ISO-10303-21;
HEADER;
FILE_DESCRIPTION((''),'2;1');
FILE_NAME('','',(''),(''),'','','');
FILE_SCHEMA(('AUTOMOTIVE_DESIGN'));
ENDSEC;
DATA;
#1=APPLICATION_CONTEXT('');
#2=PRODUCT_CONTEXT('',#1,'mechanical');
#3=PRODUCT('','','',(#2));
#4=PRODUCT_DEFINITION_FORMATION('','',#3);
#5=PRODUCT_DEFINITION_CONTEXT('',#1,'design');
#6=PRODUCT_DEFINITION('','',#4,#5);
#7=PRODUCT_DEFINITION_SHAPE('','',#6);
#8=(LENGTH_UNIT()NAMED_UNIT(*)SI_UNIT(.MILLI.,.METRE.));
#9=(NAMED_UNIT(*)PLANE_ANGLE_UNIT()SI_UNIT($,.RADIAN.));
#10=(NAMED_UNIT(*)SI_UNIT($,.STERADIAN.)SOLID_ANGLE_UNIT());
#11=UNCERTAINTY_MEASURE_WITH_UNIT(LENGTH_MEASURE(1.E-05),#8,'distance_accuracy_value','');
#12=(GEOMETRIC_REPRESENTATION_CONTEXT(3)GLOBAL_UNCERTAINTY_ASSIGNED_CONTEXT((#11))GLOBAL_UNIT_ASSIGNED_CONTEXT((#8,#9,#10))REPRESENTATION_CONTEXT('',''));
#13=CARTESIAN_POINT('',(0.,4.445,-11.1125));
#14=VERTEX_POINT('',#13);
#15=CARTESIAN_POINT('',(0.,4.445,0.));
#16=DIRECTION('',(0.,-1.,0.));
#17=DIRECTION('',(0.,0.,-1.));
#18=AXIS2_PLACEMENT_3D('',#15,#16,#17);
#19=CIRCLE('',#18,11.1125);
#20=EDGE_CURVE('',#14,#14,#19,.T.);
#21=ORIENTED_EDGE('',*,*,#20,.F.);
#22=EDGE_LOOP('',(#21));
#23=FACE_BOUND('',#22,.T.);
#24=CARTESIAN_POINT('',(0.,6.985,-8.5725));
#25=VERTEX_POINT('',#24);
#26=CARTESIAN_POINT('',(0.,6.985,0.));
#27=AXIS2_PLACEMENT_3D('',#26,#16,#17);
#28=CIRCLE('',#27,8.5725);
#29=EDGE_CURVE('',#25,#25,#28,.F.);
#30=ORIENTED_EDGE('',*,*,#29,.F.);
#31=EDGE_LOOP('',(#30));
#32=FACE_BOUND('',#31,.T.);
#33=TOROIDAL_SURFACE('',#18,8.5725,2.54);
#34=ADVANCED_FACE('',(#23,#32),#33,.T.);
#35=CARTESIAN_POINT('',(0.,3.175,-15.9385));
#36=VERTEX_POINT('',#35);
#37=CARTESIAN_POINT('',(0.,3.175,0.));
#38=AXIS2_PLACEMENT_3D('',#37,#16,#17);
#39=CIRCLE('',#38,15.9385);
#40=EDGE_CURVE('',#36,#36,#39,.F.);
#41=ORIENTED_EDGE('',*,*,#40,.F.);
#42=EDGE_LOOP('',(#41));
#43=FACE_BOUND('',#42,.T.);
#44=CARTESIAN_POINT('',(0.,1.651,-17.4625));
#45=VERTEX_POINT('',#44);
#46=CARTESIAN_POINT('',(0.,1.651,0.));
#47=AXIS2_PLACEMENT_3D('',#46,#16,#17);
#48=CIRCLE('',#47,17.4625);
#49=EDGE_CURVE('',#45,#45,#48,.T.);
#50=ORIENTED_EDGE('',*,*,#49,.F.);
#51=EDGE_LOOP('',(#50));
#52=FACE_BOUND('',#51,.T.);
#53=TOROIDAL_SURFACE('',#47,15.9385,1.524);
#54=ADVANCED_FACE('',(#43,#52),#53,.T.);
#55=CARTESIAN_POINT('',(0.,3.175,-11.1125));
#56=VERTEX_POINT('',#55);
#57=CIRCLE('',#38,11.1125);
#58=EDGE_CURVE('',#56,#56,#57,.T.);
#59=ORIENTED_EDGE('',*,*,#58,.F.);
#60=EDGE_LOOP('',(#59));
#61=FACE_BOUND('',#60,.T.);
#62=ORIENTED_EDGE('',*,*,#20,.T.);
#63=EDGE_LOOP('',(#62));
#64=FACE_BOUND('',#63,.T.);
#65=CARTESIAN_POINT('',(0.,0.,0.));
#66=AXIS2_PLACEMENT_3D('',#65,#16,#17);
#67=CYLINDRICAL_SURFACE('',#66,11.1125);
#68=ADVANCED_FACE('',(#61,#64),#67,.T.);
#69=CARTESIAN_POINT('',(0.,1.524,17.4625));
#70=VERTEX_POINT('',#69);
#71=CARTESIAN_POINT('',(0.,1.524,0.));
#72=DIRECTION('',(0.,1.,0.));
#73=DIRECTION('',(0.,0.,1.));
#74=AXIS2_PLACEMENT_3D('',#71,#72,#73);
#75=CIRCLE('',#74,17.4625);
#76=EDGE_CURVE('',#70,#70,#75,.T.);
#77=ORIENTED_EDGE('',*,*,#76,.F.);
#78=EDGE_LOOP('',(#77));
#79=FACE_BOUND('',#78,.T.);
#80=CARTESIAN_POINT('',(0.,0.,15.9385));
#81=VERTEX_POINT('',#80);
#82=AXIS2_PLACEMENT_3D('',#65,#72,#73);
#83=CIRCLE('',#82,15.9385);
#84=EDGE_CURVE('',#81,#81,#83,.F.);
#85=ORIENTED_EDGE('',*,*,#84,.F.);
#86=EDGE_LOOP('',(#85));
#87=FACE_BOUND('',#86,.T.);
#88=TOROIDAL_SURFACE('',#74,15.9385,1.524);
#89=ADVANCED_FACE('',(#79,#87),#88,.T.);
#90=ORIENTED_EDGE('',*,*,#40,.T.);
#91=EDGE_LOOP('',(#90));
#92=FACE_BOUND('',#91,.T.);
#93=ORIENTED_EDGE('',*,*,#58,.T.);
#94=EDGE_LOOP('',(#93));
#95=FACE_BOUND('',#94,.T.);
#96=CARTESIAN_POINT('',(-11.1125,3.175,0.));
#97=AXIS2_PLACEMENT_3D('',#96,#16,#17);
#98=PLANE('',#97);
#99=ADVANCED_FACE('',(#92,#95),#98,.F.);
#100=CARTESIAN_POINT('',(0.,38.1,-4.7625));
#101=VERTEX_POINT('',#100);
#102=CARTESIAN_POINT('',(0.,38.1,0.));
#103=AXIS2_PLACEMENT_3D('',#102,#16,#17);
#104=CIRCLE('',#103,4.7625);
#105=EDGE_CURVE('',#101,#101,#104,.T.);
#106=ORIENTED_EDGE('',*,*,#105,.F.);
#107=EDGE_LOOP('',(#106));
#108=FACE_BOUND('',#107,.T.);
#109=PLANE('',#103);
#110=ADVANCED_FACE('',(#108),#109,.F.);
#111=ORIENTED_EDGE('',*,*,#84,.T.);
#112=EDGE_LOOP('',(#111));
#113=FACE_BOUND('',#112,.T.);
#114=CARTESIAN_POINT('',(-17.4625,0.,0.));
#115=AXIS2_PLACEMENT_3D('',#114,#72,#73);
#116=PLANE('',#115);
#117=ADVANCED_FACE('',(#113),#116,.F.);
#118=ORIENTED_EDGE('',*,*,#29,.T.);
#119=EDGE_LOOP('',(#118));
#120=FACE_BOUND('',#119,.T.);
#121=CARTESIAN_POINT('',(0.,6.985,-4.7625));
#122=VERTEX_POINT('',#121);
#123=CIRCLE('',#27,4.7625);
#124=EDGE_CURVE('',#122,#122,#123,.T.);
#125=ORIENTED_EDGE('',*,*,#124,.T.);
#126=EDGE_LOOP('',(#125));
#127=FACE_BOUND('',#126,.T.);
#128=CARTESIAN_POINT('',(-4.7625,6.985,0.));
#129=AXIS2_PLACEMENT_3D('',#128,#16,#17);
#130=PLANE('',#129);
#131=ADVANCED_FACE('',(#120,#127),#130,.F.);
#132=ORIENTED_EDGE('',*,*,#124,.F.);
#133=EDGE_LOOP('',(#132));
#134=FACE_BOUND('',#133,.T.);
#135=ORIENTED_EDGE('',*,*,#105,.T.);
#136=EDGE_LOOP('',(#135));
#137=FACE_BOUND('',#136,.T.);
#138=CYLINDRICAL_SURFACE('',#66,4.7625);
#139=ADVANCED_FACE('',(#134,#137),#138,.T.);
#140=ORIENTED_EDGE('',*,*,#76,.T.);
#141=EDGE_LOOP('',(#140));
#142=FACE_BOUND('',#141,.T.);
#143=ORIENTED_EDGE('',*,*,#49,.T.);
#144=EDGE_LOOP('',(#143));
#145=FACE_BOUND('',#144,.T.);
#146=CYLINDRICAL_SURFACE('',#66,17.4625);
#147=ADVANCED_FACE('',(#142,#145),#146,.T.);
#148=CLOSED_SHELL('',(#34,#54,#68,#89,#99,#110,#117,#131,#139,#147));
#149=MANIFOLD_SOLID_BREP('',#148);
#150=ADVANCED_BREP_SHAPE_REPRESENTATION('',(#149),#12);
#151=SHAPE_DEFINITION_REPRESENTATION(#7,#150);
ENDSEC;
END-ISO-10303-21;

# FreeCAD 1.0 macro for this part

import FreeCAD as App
import Part
import Sketcher
Q = App.Units.Quantity


def edges_at(feature, points):
    """Names of the edges that pass closest to the given points."""
    edges = feature.Shape.Edges
    near = lambda p: min(range(len(edges)), key=lambda i: edges[i].distToShape(Part.Vertex(*p))[0])
    return sorted({f"Edge{near(p) + 1}" for p in points})

doc = App.newDocument("Part")
body = doc.addObject("PartDesign::Body", "Body")

sketch1 = doc.addObject("Sketcher::SketchObject", "Sketch")
body.addObject(sketch1)
sketch1.AttachmentSupport = (doc.XY_Plane, [""])
sketch1.MapMode = "FlatFace"
sketch1.addGeometry([
    Part.LineSegment(App.Vector(0, 0, 0), App.Vector(0, 38.1, 0)),
    Part.LineSegment(App.Vector(0, 38.1, 0), App.Vector(-4.7625, 38.1, 0)),
    Part.LineSegment(App.Vector(-4.7625, 38.1, 0), App.Vector(-4.7625, 6.985, 0)),
    Part.LineSegment(App.Vector(-4.7625, 6.985, 0), App.Vector(-11.1125, 6.985, 0)),
    Part.LineSegment(App.Vector(-11.1125, 6.985, 0), App.Vector(-11.1125, 3.175, 0)),
    Part.LineSegment(App.Vector(-11.1125, 3.175, 0), App.Vector(-17.4625, 3.175, 0)),
    Part.LineSegment(App.Vector(-17.4625, 3.175, 0), App.Vector(-17.4625, 0, 0)),
    Part.LineSegment(App.Vector(-17.4625, 0, 0), App.Vector(0, 0, 0)),
], False)
sketch1.addConstraint([
    Sketcher.Constraint("Coincident", 0, 2, 1, 1),
    Sketcher.Constraint("Coincident", 1, 2, 2, 1),
    Sketcher.Constraint("Coincident", 2, 2, 3, 1),
    Sketcher.Constraint("Coincident", 3, 2, 4, 1),
    Sketcher.Constraint("Coincident", 4, 2, 5, 1),
    Sketcher.Constraint("Coincident", 5, 2, 6, 1),
    Sketcher.Constraint("Coincident", 6, 2, 7, 1),
    Sketcher.Constraint("Coincident", 7, 2, 0, 1),
    Sketcher.Constraint("Vertical", 0),
    Sketcher.Constraint("Horizontal", 1),
    Sketcher.Constraint("Vertical", 2),
    Sketcher.Constraint("Horizontal", 3),
    Sketcher.Constraint("Vertical", 4),
    Sketcher.Constraint("Horizontal", 5),
    Sketcher.Constraint("Vertical", 6),
    Sketcher.Constraint("Horizontal", 7),
    Sketcher.Constraint("Coincident", 7, 2, -1, 1),
    Sketcher.Constraint("Equal", 3, 5),
    Sketcher.Constraint("DistanceY", 0, 1, 0, 2, Q("1.5 in")),
    Sketcher.Constraint("DistanceX", 3, 2, 3, 1, Q("0.25 in")),
    Sketcher.Constraint("DistanceY", 4, 2, 4, 1, Q("0.15 in")),
    Sketcher.Constraint("DistanceX", 1, 2, 1, 1, Q("0.1875 in")),
    Sketcher.Constraint("DistanceY", 2, 2, 2, 1, Q("1.225 in")),
])
revolution = doc.addObject("PartDesign::Revolution", "Revolution")
body.addObject(revolution)
revolution.Profile = sketch1
revolution.ReferenceAxis = (sketch1, ["V_Axis"])
revolution.Angle = 360
doc.recompute()

fillet = doc.addObject("PartDesign::Fillet", "Fillet")
body.addObject(fillet)
fillet.Base = (revolution, edges_at(revolution, [(17.462, 3.175, 0), (17.462, 0, 0)]))
fillet.Radius = Q("0.06 in")
doc.recompute()

fillet2 = doc.addObject("PartDesign::Fillet", "Fillet001")
body.addObject(fillet2)
fillet2.Base = (fillet, edges_at(fillet, [(11.113, 6.985, 0)]))
fillet2.Radius = Q("0.1 in")

doc.recompute()
